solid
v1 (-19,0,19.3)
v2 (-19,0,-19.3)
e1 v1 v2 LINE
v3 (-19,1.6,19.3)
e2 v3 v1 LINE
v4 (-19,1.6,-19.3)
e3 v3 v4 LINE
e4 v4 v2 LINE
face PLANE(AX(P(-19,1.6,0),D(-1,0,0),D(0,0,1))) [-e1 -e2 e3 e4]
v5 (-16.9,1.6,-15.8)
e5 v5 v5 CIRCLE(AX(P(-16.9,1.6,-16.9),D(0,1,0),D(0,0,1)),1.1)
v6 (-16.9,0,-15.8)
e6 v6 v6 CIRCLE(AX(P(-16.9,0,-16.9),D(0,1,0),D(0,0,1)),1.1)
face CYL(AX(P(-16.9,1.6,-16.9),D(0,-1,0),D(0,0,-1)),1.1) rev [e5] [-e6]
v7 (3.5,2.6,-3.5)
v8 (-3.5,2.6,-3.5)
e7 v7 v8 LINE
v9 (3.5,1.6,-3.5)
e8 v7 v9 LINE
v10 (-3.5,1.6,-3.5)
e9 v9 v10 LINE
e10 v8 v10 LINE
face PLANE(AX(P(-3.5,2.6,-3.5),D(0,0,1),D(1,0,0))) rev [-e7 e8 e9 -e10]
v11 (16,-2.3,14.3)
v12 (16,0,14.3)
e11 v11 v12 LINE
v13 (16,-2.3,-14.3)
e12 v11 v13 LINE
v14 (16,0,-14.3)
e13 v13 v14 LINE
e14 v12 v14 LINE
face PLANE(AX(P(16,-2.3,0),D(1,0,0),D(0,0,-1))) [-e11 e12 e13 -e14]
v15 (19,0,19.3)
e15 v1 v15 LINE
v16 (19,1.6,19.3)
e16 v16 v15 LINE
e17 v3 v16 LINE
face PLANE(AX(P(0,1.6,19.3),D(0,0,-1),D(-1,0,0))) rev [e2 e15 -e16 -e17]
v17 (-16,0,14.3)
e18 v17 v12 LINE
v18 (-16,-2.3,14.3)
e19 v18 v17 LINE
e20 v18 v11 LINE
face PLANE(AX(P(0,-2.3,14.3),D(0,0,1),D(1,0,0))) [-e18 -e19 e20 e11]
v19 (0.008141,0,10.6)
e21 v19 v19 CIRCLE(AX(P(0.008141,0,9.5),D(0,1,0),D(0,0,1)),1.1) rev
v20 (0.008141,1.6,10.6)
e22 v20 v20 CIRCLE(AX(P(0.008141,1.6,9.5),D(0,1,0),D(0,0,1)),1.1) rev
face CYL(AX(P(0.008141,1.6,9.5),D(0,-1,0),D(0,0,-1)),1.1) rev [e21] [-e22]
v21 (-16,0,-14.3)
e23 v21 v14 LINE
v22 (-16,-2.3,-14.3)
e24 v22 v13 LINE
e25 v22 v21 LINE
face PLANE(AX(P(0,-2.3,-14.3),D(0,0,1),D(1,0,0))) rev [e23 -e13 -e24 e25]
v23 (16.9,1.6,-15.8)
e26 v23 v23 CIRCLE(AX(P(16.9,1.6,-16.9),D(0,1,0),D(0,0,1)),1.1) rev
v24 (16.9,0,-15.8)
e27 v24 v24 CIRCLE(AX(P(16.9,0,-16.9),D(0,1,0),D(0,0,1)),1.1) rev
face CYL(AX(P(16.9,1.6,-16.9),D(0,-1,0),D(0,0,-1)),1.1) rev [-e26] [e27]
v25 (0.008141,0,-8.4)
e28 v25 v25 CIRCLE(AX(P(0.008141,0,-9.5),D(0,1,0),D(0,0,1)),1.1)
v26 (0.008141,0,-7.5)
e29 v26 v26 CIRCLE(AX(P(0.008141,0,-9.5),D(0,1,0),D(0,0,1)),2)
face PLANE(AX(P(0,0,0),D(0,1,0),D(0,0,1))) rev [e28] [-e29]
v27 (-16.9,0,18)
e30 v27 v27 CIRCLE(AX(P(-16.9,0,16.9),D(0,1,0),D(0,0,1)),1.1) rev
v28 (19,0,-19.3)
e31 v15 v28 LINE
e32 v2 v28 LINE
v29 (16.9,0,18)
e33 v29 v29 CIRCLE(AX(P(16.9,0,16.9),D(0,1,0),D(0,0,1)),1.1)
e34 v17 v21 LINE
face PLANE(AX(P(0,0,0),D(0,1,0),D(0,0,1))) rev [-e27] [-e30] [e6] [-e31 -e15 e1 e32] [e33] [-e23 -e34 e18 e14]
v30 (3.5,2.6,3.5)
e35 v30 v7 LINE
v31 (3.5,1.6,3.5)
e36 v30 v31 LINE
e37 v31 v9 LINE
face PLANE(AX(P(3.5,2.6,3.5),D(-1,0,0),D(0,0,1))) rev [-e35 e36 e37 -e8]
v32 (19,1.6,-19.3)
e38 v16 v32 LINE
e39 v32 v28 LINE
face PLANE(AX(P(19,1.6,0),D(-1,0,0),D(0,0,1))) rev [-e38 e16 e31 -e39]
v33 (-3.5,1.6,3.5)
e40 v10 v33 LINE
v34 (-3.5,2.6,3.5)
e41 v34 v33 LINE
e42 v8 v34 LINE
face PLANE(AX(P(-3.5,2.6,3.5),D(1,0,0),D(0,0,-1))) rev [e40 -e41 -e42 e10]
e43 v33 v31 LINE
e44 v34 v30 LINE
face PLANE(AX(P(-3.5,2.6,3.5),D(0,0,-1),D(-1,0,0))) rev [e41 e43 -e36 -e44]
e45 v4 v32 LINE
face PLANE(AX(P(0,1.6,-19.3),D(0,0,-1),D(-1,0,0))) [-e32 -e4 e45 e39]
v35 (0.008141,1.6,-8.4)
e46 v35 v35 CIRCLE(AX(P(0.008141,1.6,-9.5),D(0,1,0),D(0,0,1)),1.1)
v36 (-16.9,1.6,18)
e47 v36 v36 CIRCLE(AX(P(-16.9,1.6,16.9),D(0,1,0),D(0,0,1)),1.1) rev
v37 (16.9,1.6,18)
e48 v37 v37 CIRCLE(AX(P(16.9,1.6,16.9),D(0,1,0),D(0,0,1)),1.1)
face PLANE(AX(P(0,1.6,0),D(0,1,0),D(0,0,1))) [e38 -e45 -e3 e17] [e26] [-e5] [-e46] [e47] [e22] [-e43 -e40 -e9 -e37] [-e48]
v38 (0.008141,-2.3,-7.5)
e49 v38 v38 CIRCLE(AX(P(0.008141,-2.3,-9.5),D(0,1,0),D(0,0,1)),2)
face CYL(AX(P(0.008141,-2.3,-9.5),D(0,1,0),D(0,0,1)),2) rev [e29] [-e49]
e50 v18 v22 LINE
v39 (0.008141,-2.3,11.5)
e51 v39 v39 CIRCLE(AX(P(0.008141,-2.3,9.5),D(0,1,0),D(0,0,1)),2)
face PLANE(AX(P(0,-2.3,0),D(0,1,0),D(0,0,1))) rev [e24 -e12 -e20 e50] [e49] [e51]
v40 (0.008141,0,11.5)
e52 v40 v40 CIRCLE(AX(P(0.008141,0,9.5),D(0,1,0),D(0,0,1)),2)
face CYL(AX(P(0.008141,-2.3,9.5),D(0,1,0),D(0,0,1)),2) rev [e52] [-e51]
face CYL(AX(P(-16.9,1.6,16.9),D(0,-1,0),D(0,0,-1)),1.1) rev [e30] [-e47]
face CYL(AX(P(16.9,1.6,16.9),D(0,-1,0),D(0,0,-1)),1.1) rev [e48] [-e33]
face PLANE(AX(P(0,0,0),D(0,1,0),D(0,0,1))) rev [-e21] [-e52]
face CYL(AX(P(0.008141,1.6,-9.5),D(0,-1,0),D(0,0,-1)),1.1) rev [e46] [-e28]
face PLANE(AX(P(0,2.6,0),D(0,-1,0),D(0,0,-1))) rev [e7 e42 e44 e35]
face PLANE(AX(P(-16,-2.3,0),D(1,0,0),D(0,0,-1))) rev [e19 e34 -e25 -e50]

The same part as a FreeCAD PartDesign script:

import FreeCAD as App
import Part
import Sketcher

V = App.Vector

doc = App.newDocument("Part")
body = doc.addObject("PartDesign::Body", "Body")

# Sketch on XZ plane
sketch1 = body.newObject("Sketcher::SketchObject", "Sketch")
sketch1.AttachmentSupport = (doc.getObject("XZ_Plane"), [""])
sketch1.MapMode = "FlatFace"
sketch1.addGeometry([
    Part.LineSegment(V(-19, -19.3, 0), V(-19, 19.3, 0)),  # 0
    Part.LineSegment(V(-19, 19.3, 0), V(19, 19.3, 0)),  # 1
    Part.LineSegment(V(19, 19.3, 0), V(19, -19.3, 0)),  # 2
    Part.LineSegment(V(19, -19.3, 0), V(-19, -19.3, 0)),  # 3
    Part.Circle(V(-16.9, 16.9, 0), V(0, 0, 1), 1.1),  # 4
    Part.Circle(V(0, 9.5, 0), V(0, 0, 1), 1.1),  # 5
    Part.Circle(V(16.9, 16.9, 0), V(0, 0, 1), 1.1),  # 6
    Part.Circle(V(-16.9, -16.9, 0), V(0, 0, 1), 1.1),  # 7
    Part.Circle(V(0, -9.5, 0), V(0, 0, 1), 1.1),  # 8
    Part.Circle(V(16.9, -16.9, 0), V(0, 0, 1), 1.1),  # 9
], False)
sketch1.addConstraint([
    Sketcher.Constraint("Coincident", 0, 2, 1, 1),
    Sketcher.Constraint("Coincident", 1, 2, 2, 1),
    Sketcher.Constraint("Coincident", 2, 2, 3, 1),
    Sketcher.Constraint("Coincident", 3, 2, 0, 1),
    Sketcher.Constraint("Vertical", 0),
    Sketcher.Constraint("Horizontal", 1),
    Sketcher.Constraint("Vertical", 2),
    Sketcher.Constraint("Horizontal", 3),
    Sketcher.Constraint("Equal", 4, 5),
    Sketcher.Constraint("Equal", 5, 6),
    Sketcher.Constraint("Equal", 6, 7),
    Sketcher.Constraint("Equal", 7, 8),
    Sketcher.Constraint("Equal", 8, 9),
    Sketcher.Constraint("Symmetric", 6, 3, 7, 3, -1, 1),
    Sketcher.Constraint("Symmetric", 4, 3, 9, 3, -1, 1),
    Sketcher.Constraint("Symmetric", 0, 2, 2, 2, -1, 1),
    Sketcher.Constraint("Symmetric", 4, 3, 6, 3, -2),
    Sketcher.Constraint("Symmetric", 5, 3, 8, 3, -1),
    Sketcher.Constraint("Diameter", 4, 2.2),
    Sketcher.Constraint("DistanceX", 1, 1, 1, 2, 38.0),
    Sketcher.Constraint("DistanceY", 0, 1, 0, 2, 38.6),
    Sketcher.Constraint("DistanceY", 8, 3, 5, 3, 19.0),
    Sketcher.Constraint("DistanceX", 4, 3, -1, 1, 16.9),
    Sketcher.Constraint("DistanceY", -1, 1, 4, 3, 16.9),
    Sketcher.Constraint("DistanceX", -1, 1, 5, 3, 0.008141),
])
pad1 = body.newObject("PartDesign::Pad", "Pad")
pad1.Profile = sketch1
pad1.Length = 1.6
pad1.Reversed = True

# Sketch on XZ plane
sketch2 = body.newObject("Sketcher::SketchObject", "Sketch001")
sketch2.AttachmentSupport = (doc.getObject("XZ_Plane"), [""])
sketch2.MapMode = "FlatFace"
sketch2.addGeometry([
    Part.LineSegment(V(-16, -14.3, 0), V(-16, 14.3, 0)),  # 0
    Part.LineSegment(V(-16, 14.3, 0), V(16, 14.3, 0)),  # 1
    Part.LineSegment(V(16, 14.3, 0), V(16, -14.3, 0)),  # 2
    Part.LineSegment(V(16, -14.3, 0), V(-16, -14.3, 0)),  # 3
    Part.Circle(V(0, 9.5, 0), V(0, 0, 1), 2),  # 4
    Part.Circle(V(0, -9.5, 0), V(0, 0, 1), 2),  # 5
], False)
sketch2.addConstraint([
    Sketcher.Constraint("Coincident", 0, 2, 1, 1),
    Sketcher.Constraint("Coincident", 1, 2, 2, 1),
    Sketcher.Constraint("Coincident", 2, 2, 3, 1),
    Sketcher.Constraint("Coincident", 3, 2, 0, 1),
    Sketcher.Constraint("Vertical", 0),
    Sketcher.Constraint("Horizontal", 1),
    Sketcher.Constraint("Vertical", 2),
    Sketcher.Constraint("Horizontal", 3),
    Sketcher.Constraint("Equal", 4, 5),
    Sketcher.Constraint("Symmetric", 0, 2, 2, 2, -1, 1),
    Sketcher.Constraint("Symmetric", 4, 3, 5, 3, -1),
    Sketcher.Constraint("Diameter", 4, 4.0),
    Sketcher.Constraint("DistanceX", 1, 1, 1, 2, 32.0),
    Sketcher.Constraint("DistanceY", 0, 1, 0, 2, 28.6),
    Sketcher.Constraint("DistanceY", 5, 3, 4, 3, 19.0),
    Sketcher.Constraint("DistanceX", -1, 1, 4, 3, 0.008141),
])
pad2 = body.newObject("PartDesign::Pad", "Pad001")
pad2.Profile = sketch2
pad2.Length = 2.3

# Sketch on XZ plane
sketch3 = body.newObject("Sketcher::SketchObject", "Sketch002")
sketch3.AttachmentSupport = (doc.getObject("XZ_Plane"), [""])
sketch3.MapMode = "FlatFace"
sketch3.AttachmentOffset = App.Placement(V(0, 0, -1.6), App.Rotation())
sketch3.addGeometry([
    Part.LineSegment(V(-4, -4, 0), V(-4, 4, 0)),
    Part.LineSegment(V(-4, 4, 0), V(4, 4, 0)),
    Part.LineSegment(V(4, 4, 0), V(4, -4, 0)),
    Part.LineSegment(V(4, -4, 0), V(-4, -4, 0)),
], False)
sketch3.addConstraint([
    Sketcher.Constraint("Coincident", 0, 2, 1, 1),
    Sketcher.Constraint("Coincident", 1, 2, 2, 1),
    Sketcher.Constraint("Coincident", 2, 2, 3, 1),
    Sketcher.Constraint("Coincident", 3, 2, 0, 1),
    Sketcher.Constraint("Vertical", 0),
    Sketcher.Constraint("Horizontal", 1),
    Sketcher.Constraint("Vertical", 2),
    Sketcher.Constraint("Horizontal", 3),
    Sketcher.Constraint("Symmetric", 0, 2, 2, 2, -1, 1),
    Sketcher.Constraint("Equal", 3, 0),
    Sketcher.Constraint("DistanceX", 1, 1, 1, 2, 7.0),
])
pad3 = body.newObject("PartDesign::Pad", "Pad002")
pad3.Profile = sketch3
pad3.Length = 1
pad3.Reversed = True

doc.recompute()
